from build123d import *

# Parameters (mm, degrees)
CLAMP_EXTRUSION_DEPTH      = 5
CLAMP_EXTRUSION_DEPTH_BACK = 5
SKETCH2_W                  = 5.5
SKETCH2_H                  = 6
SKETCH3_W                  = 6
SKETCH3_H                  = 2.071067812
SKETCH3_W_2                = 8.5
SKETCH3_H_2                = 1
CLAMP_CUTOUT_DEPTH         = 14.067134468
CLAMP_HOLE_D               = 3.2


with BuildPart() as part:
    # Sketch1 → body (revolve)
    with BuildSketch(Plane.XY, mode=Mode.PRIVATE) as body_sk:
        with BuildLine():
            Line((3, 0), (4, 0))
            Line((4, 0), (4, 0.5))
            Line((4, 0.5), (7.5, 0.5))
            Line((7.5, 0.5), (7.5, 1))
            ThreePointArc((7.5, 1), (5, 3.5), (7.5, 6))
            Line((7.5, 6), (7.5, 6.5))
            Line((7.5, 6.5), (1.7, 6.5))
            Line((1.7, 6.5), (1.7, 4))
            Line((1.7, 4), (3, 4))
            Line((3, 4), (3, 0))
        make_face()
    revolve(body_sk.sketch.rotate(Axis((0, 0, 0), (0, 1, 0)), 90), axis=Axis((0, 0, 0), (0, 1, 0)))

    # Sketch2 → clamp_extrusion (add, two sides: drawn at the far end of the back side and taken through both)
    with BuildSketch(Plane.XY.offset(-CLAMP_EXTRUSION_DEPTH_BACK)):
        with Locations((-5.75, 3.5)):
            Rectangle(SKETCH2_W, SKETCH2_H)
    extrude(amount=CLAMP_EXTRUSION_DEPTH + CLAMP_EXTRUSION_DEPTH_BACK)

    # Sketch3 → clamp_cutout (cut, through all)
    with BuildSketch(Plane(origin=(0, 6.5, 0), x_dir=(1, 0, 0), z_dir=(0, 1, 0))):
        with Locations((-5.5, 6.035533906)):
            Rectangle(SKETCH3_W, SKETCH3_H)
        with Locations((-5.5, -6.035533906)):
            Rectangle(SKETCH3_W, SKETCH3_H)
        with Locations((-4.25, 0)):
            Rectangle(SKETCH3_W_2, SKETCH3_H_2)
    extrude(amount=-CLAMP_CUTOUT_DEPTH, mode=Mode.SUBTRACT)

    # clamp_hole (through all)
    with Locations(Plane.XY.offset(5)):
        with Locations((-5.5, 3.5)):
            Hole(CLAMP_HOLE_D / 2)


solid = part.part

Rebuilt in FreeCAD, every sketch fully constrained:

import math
import FreeCAD as App
import Part
import Sketcher
from FreeCAD import Vector

doc = App.newDocument("Part")
body = doc.addObject("PartDesign::Body", "Body")

sketch1 = body.newObject("Sketcher::SketchObject", "Sketch")
sketch1.AttachmentSupport = (doc.getObject("XY_Plane"), [""])
sketch1.MapMode = "FlatFace"
sketch1.addGeometry([
    Part.LineSegment(Vector(3, 0, 0), Vector(4, 0, 0)),
    Part.LineSegment(Vector(4, 0, 0), Vector(4, 0.5, 0)),
    Part.LineSegment(Vector(4, 0.5, 0), Vector(7.5, 0.5, 0)),
    Part.LineSegment(Vector(7.5, 0.5, 0), Vector(7.5, 1, 0)),
    Part.ArcOfCircle(Part.Circle(Vector(7.5, 3.5, 0), Vector(0, 0, 1), 2.5), math.radians(90), math.radians(270)),
    Part.LineSegment(Vector(7.5, 6, 0), Vector(7.5, 6.5, 0)),
    Part.LineSegment(Vector(7.5, 6.5, 0), Vector(1.7, 6.5, 0)),
    Part.LineSegment(Vector(1.7, 6.5, 0), Vector(1.7, 4, 0)),
    Part.LineSegment(Vector(1.7, 4, 0), Vector(3, 4, 0)),
    Part.LineSegment(Vector(3, 4, 0), Vector(3, 0, 0)),
], False)
sketch1.addConstraint([
    Sketcher.Constraint("Coincident", 0, 2, 1, 1),
    Sketcher.Constraint("Coincident", 1, 2, 2, 1),
    Sketcher.Constraint("Coincident", 2, 2, 3, 1),
    Sketcher.Constraint("Coincident", 3, 2, 4, 2),
    Sketcher.Constraint("Coincident", 4, 1, 5, 1),
    Sketcher.Constraint("Coincident", 5, 2, 6, 1),
    Sketcher.Constraint("Coincident", 6, 2, 7, 1),
    Sketcher.Constraint("Coincident", 7, 2, 8, 1),
    Sketcher.Constraint("Coincident", 8, 2, 9, 1),
    Sketcher.Constraint("Coincident", 9, 2, 0, 1),
    Sketcher.Constraint("Horizontal", 0),
    Sketcher.Constraint("Vertical", 1),
    Sketcher.Constraint("Horizontal", 2),
    Sketcher.Constraint("Vertical", 3),
    Sketcher.Constraint("Vertical", 5),
    Sketcher.Constraint("Horizontal", 6),
    Sketcher.Constraint("Vertical", 7),
    Sketcher.Constraint("Horizontal", 8),
    Sketcher.Constraint("Vertical", 9),
    Sketcher.Constraint("PointOnObject", 0, 2, -1),
    Sketcher.Constraint("Vertical", 4, 3, 2, 2),
    Sketcher.Constraint("Vertical", 3, 2, 4, 1),
    Sketcher.Constraint("Equal", 1, 3),
    Sketcher.Constraint("Equal", 3, 5),
    Sketcher.Constraint("Radius", 4, 2.5),
    Sketcher.Constraint("DistanceX", 0, 1, 0, 2, 1.0),
    Sketcher.Constraint("DistanceY", 9, 2, 9, 1, 4.0),
    Sketcher.Constraint("DistanceX", 2, 1, 2, 2, 3.5),
    Sketcher.Constraint("DistanceX", 6, 2, 6, 1, 5.8),
    Sketcher.Constraint("DistanceY", 1, 1, 1, 2, 0.5),
    Sketcher.Constraint("DistanceX", -1, 1, 0, 2, 4.0),
])
revolution = body.newObject("PartDesign::Revolution", "Revolution")
revolution.Profile = sketch1
revolution.ReferenceAxis = (sketch1, ["V_Axis"])
revolution.Angle = 360

sketch2 = body.newObject("Sketcher::SketchObject", "Sketch001")
sketch2.AttachmentSupport = (doc.getObject("XY_Plane"), [""])
sketch2.MapMode = "FlatFace"
sketch2.addGeometry([
    Part.LineSegment(Vector(-8, 6, 0), Vector(-8, 0, 0)),
    Part.LineSegment(Vector(-8, 0, 0), Vector(-3, 0, 0)),
    Part.LineSegment(Vector(-3, 0, 0), Vector(-3, 6, 0)),
    Part.LineSegment(Vector(-3, 6, 0), Vector(-8, 6, 0)),
], False)
sketch2.addConstraint([
    Sketcher.Constraint("Coincident", 0, 2, 1, 1),
    Sketcher.Constraint("Coincident", 1, 2, 2, 1),
    Sketcher.Constraint("Coincident", 2, 2, 3, 1),
    Sketcher.Constraint("Coincident", 3, 2, 0, 1),
    Sketcher.Constraint("Vertical", 0),
    Sketcher.Constraint("Horizontal", 1),
    Sketcher.Constraint("Vertical", 2),
    Sketcher.Constraint("Horizontal", 3),
    Sketcher.Constraint("DistanceY", 0, 2, 0, 1, 6.0),
    Sketcher.Constraint("DistanceX", 1, 1, 1, 2, 5.5),
    Sketcher.Constraint("DistanceX", 1, 2, -1, 1, 3.0),
    Sketcher.Constraint("DistanceY", -1, 1, 0, 2, 0.5),
])
pad1 = body.newObject("PartDesign::Pad", "Pad")
pad1.Profile = sketch2
pad1.Type = "TwoLengths"
pad1.Length = 5
pad1.Length2 = 5

sketch3 = body.newObject("Sketcher::SketchObject", "Sketch002")
sketch3.AttachmentSupport = (doc.getObject("XZ_Plane"), [""])
sketch3.MapMode = "FlatFace"
sketch3.AttachmentOffset = App.Placement(Vector(0, 0, -6.5), App.Rotation())
sketch3.addGeometry([
    Part.LineSegment(Vector(-8.5, -7.1, 0), Vector(-8.5, -5, 0)),
    Part.LineSegment(Vector(-8.5, -5, 0), Vector(-2.5, -5, 0)),
    Part.LineSegment(Vector(-2.5, -5, 0), Vector(-2.5, -7.1, 0)),
    Part.LineSegment(Vector(-2.5, -7.1, 0), Vector(-8.5, -7.1, 0)),
    Part.LineSegment(Vector(-8.5, 5, 0), Vector(-8.5, 7.1, 0)),
    Part.LineSegment(Vector(-8.5, 7.1, 0), Vector(-2.5, 7.1, 0)),
    Part.LineSegment(Vector(-2.5, 7.1, 0), Vector(-2.5, 5, 0)),
    Part.LineSegment(Vector(-2.5, 5, 0), Vector(-8.5, 5, 0)),
    Part.LineSegment(Vector(-8.5, -0.5, 0), Vector(-8.5, 0.5, 0)),
    Part.LineSegment(Vector(-8.5, 0.5, 0), Vector(0, 0.5, 0)),
    Part.LineSegment(Vector(0, 0.5, 0), Vector(0, -0.5, 0)),
    Part.LineSegment(Vector(0, -0.5, 0), Vector(-8.5, -0.5, 0)),
], False)
sketch3.addConstraint([
    Sketcher.Constraint("Coincident", 0, 2, 1, 1),
    Sketcher.Constraint("Coincident", 1, 2, 2, 1),
    Sketcher.Constraint("Coincident", 2, 2, 3, 1),
    Sketcher.Constraint("Coincident", 3, 2, 0, 1),
    Sketcher.Constraint("Coincident", 4, 2, 5, 1),
    Sketcher.Constraint("Coincident", 5, 2, 6, 1),
    Sketcher.Constraint("Coincident", 6, 2, 7, 1),
    Sketcher.Constraint("Coincident", 7, 2, 4, 1),
    Sketcher.Constraint("Coincident", 8, 2, 9, 1),
    Sketcher.Constraint("Coincident", 9, 2, 10, 1),
    Sketcher.Constraint("Coincident", 10, 2, 11, 1),
    Sketcher.Constraint("Coincident", 11, 2, 8, 1),
    Sketcher.Constraint("Vertical", 0),
    Sketcher.Constraint("Horizontal", 1),
    Sketcher.Constraint("Vertical", 2),
    Sketcher.Constraint("Horizontal", 3),
    Sketcher.Constraint("Vertical", 4),
    Sketcher.Constraint("Horizontal", 5),
    Sketcher.Constraint("Vertical", 6),
    Sketcher.Constraint("Horizontal", 7),
    Sketcher.Constraint("Vertical", 8),
    Sketcher.Constraint("Horizontal", 9),
    Sketcher.Constraint("Vertical", 10),
    Sketcher.Constraint("Horizontal", 11),
    Sketcher.Constraint("Symmetric", 9, 2, 10, 2, -1, 1),
    Sketcher.Constraint("Symmetric", 3, 2, 4, 2, -1),
    Sketcher.Constraint("Symmetric", 1, 2, 6, 2, -1),
    Sketcher.Constraint("Vertical", 7, 2, 8, 2),
    Sketcher.Constraint("DistanceX", 1, 1, 1, 2, 6.0),
    Sketcher.Constraint("DistanceY", 8, 1, 8, 2, 1.0),
    Sketcher.Constraint("DistanceX", 9, 1, 9, 2, 8.5),
    Sketcher.Constraint("DistanceY", 0, 2, -1, 1, 5.0),
    Sketcher.Constraint("DistanceY", 0, 1, 0, 2, 2.071068),
])
pocket1 = body.newObject("PartDesign::Pocket", "Pocket")
pocket1.Profile = sketch3
pocket1.Type = "ThroughAll"
pocket1.Reversed = True

sketch4 = body.newObject("Sketcher::SketchObject", "Sketch003")
sketch4.AttachmentSupport = (doc.getObject("XY_Plane"), [""])
sketch4.MapMode = "FlatFace"
sketch4.AttachmentOffset = App.Placement(Vector(0, 0, 5), App.Rotation())
sketch4.addGeometry(Part.Circle(Vector(-5.5, 3.5, 0), Vector(0, 0, 1), 1.6), False)
sketch4.addConstraint([
    Sketcher.Constraint("Diameter", 0, 3.2),
    Sketcher.Constraint("DistanceX", 0, 3, -1, 1, 5.5),
    Sketcher.Constraint("DistanceY", -1, 1, 0, 3, 3.5),
])
doc.recompute()
hole = body.newObject("PartDesign::Hole", "Hole")
hole.Profile = sketch4
hole.ThreadType = "None"
hole.Diameter = 3.2
hole.DepthType = "ThroughAll"

doc.recompute()
